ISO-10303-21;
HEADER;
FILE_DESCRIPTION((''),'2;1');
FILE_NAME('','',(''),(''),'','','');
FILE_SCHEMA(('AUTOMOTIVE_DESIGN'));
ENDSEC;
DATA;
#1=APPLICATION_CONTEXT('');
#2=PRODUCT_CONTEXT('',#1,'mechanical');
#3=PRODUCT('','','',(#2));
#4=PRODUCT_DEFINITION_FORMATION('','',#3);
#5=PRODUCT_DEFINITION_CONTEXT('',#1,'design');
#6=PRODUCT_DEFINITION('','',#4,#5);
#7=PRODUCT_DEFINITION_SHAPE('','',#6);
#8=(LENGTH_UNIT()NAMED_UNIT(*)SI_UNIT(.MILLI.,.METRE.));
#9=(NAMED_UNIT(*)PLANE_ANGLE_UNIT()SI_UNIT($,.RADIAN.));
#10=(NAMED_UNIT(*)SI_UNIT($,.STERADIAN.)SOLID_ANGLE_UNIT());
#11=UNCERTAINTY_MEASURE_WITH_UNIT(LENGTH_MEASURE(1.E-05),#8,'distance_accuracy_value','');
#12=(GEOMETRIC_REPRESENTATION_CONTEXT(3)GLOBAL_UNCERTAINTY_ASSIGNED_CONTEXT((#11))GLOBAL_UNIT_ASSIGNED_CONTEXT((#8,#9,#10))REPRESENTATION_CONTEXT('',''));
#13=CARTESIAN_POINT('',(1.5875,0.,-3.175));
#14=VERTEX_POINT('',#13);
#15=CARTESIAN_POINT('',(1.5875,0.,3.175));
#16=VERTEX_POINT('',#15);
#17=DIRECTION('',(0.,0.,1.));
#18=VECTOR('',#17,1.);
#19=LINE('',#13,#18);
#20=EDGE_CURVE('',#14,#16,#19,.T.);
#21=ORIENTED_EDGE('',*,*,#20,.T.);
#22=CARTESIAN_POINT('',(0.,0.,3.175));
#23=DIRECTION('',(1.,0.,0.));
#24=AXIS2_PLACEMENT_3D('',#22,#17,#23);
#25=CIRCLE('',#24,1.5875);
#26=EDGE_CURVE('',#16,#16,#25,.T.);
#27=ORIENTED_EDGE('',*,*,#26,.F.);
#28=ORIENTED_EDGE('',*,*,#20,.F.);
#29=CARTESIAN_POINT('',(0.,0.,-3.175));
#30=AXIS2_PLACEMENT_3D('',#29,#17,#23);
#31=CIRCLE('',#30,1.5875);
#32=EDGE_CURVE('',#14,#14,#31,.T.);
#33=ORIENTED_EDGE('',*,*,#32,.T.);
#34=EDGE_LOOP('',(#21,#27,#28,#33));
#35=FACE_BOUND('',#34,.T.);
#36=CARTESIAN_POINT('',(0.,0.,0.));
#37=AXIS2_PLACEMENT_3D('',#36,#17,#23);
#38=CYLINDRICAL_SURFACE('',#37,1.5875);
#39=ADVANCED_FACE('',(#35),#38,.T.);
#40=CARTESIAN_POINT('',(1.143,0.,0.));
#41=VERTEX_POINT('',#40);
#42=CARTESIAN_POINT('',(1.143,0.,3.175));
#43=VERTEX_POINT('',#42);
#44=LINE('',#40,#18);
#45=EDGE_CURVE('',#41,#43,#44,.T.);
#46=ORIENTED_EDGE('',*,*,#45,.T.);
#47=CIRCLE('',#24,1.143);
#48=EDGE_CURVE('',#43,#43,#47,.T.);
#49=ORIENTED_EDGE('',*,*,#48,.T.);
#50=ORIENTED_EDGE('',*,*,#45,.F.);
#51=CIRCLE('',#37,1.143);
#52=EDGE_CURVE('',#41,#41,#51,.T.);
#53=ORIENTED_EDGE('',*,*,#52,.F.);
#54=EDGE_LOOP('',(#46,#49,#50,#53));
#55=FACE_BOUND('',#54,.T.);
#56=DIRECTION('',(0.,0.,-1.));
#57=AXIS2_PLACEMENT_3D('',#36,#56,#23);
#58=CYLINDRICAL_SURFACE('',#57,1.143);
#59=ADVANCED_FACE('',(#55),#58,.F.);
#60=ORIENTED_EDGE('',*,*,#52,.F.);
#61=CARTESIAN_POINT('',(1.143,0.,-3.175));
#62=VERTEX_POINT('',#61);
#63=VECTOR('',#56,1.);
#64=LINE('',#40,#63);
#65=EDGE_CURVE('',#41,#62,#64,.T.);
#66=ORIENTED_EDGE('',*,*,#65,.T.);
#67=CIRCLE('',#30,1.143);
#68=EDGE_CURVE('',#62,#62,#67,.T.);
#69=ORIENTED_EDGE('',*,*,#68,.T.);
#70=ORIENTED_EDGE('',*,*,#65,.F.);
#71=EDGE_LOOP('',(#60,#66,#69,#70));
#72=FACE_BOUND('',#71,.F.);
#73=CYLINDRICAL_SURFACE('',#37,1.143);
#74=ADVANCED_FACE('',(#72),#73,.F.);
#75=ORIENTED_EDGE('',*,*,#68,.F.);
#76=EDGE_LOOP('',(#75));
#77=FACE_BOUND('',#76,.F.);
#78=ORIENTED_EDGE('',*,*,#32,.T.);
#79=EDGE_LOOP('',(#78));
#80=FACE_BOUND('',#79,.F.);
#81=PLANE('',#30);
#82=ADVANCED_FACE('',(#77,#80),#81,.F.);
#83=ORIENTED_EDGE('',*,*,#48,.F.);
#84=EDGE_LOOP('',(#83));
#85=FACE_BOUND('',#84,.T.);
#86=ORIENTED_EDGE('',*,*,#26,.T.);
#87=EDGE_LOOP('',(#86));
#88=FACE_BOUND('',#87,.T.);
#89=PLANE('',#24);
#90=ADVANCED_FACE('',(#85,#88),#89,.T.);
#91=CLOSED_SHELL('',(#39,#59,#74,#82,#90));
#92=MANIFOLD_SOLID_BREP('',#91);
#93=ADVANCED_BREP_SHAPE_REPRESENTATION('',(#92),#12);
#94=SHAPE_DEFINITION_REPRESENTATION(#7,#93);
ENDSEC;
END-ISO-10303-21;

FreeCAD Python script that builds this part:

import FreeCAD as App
import Part
import Sketcher

V = App.Vector
Q = App.Units.Quantity

doc = App.newDocument("Part")
body = doc.addObject("PartDesign::Body", "Body")

# Sketch on XY plane
sketch1 = body.newObject("Sketcher::SketchObject", "Sketch")
sketch1.AttachmentSupport = (doc.getObject("XY_Plane"), [""])
sketch1.MapMode = "FlatFace"
sketch1.addGeometry([
    Part.Circle(V(0, 0, 0), V(0, 0, 1), 1.5875),
    Part.Circle(V(0, 0, 0), V(0, 0, 1), 1.143),
], False)
sketch1.addConstraint([
    Sketcher.Constraint("Coincident", 0, 3, -1, 1),
    Sketcher.Constraint("Coincident", 1, 3, -1, 1),
    Sketcher.Constraint("Diameter", 1, Q("0.09 in")),
    Sketcher.Constraint("Diameter", 0, Q("0.125 in")),
])
pad1 = body.newObject("PartDesign::Pad", "Pad")
pad1.Profile = sketch1
pad1.Type = "TwoLengths"
pad1.Length = Q("0.125 in")
pad1.Length2 = Q("0.125 in")

doc.recompute()
